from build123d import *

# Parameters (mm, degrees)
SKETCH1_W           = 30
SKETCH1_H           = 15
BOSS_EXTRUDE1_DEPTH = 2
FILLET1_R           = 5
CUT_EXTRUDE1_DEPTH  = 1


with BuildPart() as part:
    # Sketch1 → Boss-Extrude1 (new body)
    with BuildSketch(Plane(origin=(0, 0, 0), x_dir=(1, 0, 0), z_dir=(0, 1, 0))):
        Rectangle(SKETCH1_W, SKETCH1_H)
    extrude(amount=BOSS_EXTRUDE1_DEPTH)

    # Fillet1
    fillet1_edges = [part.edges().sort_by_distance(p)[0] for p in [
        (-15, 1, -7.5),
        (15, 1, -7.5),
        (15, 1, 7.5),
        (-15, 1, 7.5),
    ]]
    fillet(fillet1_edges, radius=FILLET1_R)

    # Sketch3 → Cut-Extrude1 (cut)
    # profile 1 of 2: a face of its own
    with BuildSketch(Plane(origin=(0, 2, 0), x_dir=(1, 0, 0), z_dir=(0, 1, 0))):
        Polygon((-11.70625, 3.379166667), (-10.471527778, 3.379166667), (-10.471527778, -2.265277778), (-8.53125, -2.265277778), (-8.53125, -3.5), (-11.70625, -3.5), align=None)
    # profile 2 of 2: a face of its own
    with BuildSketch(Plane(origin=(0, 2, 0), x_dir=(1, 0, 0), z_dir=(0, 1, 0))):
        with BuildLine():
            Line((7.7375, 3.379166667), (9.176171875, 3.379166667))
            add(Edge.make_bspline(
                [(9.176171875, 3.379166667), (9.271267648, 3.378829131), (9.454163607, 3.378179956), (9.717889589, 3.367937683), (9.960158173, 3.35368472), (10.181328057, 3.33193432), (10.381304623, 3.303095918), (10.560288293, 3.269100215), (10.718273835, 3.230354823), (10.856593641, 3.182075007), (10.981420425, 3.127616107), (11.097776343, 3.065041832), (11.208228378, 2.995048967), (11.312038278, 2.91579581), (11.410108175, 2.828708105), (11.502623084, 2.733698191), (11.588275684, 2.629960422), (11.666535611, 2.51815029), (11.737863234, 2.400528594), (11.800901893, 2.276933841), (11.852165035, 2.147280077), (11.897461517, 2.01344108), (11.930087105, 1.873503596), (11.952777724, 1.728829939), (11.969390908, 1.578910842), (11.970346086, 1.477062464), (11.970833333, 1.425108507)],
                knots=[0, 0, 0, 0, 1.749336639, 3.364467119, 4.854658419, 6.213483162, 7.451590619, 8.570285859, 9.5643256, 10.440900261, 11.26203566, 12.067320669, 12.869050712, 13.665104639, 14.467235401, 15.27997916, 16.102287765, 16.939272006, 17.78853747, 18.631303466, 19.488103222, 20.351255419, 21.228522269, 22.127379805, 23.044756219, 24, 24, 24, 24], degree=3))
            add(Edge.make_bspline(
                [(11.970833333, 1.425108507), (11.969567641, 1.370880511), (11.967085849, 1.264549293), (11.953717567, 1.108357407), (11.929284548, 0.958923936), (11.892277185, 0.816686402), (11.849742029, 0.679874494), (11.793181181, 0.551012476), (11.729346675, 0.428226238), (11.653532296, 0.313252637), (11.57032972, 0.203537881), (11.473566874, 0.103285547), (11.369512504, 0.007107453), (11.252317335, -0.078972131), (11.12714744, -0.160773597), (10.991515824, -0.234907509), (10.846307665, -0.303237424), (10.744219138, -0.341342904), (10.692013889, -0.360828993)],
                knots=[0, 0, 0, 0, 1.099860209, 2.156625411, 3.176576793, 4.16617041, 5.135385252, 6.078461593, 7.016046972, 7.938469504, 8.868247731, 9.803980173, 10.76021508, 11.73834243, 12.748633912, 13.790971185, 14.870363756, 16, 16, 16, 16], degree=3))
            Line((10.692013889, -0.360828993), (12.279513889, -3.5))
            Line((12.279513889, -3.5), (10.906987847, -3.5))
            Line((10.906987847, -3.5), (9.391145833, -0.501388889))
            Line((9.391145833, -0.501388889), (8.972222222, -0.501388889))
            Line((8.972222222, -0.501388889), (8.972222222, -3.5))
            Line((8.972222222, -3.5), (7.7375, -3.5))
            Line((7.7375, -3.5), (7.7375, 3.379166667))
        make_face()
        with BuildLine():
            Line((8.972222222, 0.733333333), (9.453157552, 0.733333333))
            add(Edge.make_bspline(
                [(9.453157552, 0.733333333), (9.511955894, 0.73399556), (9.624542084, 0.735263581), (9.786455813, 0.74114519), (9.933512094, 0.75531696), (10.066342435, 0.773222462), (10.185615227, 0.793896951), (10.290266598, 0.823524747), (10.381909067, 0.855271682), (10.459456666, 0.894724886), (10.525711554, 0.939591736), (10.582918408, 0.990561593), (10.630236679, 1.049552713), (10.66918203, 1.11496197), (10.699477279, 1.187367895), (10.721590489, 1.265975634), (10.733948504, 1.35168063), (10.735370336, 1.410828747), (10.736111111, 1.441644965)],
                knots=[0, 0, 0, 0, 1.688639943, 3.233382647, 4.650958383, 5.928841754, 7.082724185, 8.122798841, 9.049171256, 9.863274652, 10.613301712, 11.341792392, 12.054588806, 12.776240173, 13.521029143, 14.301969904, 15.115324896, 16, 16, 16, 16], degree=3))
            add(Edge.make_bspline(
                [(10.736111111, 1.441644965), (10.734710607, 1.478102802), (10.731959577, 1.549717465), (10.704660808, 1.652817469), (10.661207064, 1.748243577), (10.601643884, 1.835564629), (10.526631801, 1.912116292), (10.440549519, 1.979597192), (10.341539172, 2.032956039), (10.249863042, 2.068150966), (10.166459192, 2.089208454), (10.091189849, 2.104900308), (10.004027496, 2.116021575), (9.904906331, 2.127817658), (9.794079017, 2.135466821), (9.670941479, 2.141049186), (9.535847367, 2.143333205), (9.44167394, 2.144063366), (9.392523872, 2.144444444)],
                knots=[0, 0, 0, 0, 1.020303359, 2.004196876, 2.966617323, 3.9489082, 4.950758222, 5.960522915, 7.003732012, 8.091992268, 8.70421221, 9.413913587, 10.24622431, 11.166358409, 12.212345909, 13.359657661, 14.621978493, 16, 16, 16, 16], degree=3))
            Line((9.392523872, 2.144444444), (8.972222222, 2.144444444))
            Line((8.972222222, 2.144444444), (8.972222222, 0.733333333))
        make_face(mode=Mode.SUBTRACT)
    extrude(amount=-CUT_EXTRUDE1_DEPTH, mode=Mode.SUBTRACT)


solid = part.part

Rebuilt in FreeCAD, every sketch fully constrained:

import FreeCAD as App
import Part
import Sketcher
from FreeCAD import Vector
Q = App.Units.Quantity


def edges_at(feature, points):
    """Names of the edges that pass closest to the given points."""
    edges = feature.Shape.Edges
    near = lambda p: min(range(len(edges)), key=lambda i: edges[i].distToShape(Part.Vertex(*p))[0])
    return sorted({f"Edge{near(p) + 1}" for p in points})

doc = App.newDocument("Part")
params = doc.addObject("Spreadsheet::Sheet", "Params")
for row, (alias, value) in enumerate([
    ("sketch1_width", "30 mm"),
    ("sketch1_height", "15 mm"),
    ("pad1_length", "2 mm"),
    ("fillet_radius", "5 mm"),
    ("pocket1_length", "1 mm"),
], start=1):
    params.set(f"A{row}", alias)
    params.set(f"B{row}", "=" + value)
    params.setAlias(f"B{row}", alias)

body = doc.addObject("PartDesign::Body", "Body")

sketch1 = doc.addObject("Sketcher::SketchObject", "Sketch")
body.addObject(sketch1)
sketch1.AttachmentSupport = (doc.XZ_Plane, [""])
sketch1.MapMode = "FlatFace"
sketch1.addGeometry([
    Part.LineSegment(Vector(-15, -8, 0), Vector(-15, 8, 0)),
    Part.LineSegment(Vector(-15, 8, 0), Vector(15, 8, 0)),
    Part.LineSegment(Vector(15, 8, 0), Vector(15, -8, 0)),
    Part.LineSegment(Vector(15, -8, 0), Vector(-15, -8, 0)),
], False)
sketch1.addConstraint([
    Sketcher.Constraint("Coincident", 0, 2, 1, 1),
    Sketcher.Constraint("Coincident", 1, 2, 2, 1),
    Sketcher.Constraint("Coincident", 2, 2, 3, 1),
    Sketcher.Constraint("Coincident", 3, 2, 0, 1),
    Sketcher.Constraint("Vertical", 0),
    Sketcher.Constraint("Horizontal", 1),
    Sketcher.Constraint("Vertical", 2),
    Sketcher.Constraint("Horizontal", 3),
    Sketcher.Constraint("Symmetric", 0, 2, 2, 2, -1, 1),
    Sketcher.Constraint("DistanceX", 1, 1, 1, 2, Q("30 mm")),
    Sketcher.Constraint("DistanceY", 0, 1, 0, 2, Q("15 mm")),
])
sketch1.setExpression("Constraints[9]", "Params.sketch1_width")
sketch1.setExpression("Constraints[10]", "Params.sketch1_height")
pad1 = doc.addObject("PartDesign::Pad", "Pad")
body.addObject(pad1)
pad1.Profile = sketch1
pad1.setExpression("Length", "Params.pad1_length")
pad1.Reversed = True
doc.recompute()

fillet = doc.addObject("PartDesign::Fillet", "Fillet")
body.addObject(fillet)
fillet.Base = (pad1, edges_at(pad1, [
    (-15, 1, -7.5),
    (15, 1, -7.5),
    (15, 1, 7.5),
    (-15, 1, 7.5),
]))
fillet.setExpression("Radius", "Params.fillet_radius")

sketch2 = doc.addObject("Sketcher::SketchObject", "Sketch001")
body.addObject(sketch2)
sketch2.AttachmentSupport = (doc.XZ_Plane, [""])
sketch2.MapMode = "FlatFace"
sketch2.AttachmentOffset = App.Placement(Vector(0, 0, -2), App.Rotation())
sketch2.addGeometry([
    Part.LineSegment(Vector(-10.471528, -3.379167, 0), Vector(-11.70625, -3.379167, 0)),
    Part.LineSegment(Vector(-11.70625, -3.379167, 0), Vector(-11.70625, 3.5, 0)),
    Part.LineSegment(Vector(-11.70625, 3.5, 0), Vector(-8.53125, 3.5, 0)),
    Part.LineSegment(Vector(-8.53125, 3.5, 0), Vector(-8.53125, 2.265278, 0)),
    Part.LineSegment(Vector(-8.53125, 2.265278, 0), Vector(-10.471528, 2.265278, 0)),
    Part.LineSegment(Vector(-10.471528, 2.265278, 0), Vector(-10.471528, -3.379167, 0)),
    Part.LineSegment(Vector(9.176172, -3.379167, 0), Vector(7.7375, -3.379167, 0)),
    Part.LineSegment(Vector(7.7375, -3.379167, 0), Vector(7.7375, 3.5, 0)),
    Part.LineSegment(Vector(7.7375, 3.5, 0), Vector(8.972222, 3.5, 0)),
    Part.LineSegment(Vector(8.972222, 3.5, 0), Vector(8.972222, 0.501389, 0)),
    Part.LineSegment(Vector(8.972222, 0.501389, 0), Vector(9.391146, 0.501389, 0)),
    Part.LineSegment(Vector(9.391146, 0.501389, 0), Vector(10.906988, 3.5, 0)),
    Part.LineSegment(Vector(10.906988, 3.5, 0), Vector(12.279514, 3.5, 0)),
    Part.LineSegment(Vector(12.279514, 3.5, 0), Vector(10.692014, 0.360829, 0)),
    Part.BSplineCurve([Vector(11.970833, -1.425109, 0), Vector(11.969568, -1.370881, 0), Vector(11.967086, -1.264549, 0), Vector(11.953718, -1.108357, 0), Vector(11.929285, -0.958924, 0), Vector(11.892277, -0.816686, 0), Vector(11.849742, -0.679874, 0), Vector(11.793181, -0.551012, 0), Vector(11.729347, -0.428226, 0), Vector(11.653532, -0.313253, 0), Vector(11.57033, -0.203538, 0), Vector(11.473567, -0.103286, 0), Vector(11.369513, -0.007107, 0), Vector(11.252317, 0.078972, 0), Vector(11.127147, 0.160774, 0), Vector(10.991516, 0.234908, 0), Vector(10.846308, 0.303237, 0), Vector(10.744219, 0.341343, 0), Vector(10.692014, 0.360829, 0)], [4, 1, 1, 1, 1, 1, 1, 1, 1, 1, 1, 1, 1, 1, 1, 1, 4], [0, 1.099860209, 2.156625411, 3.176576793, 4.16617041, 5.135385252, 6.078461593, 7.016046972, 7.938469504, 8.868247731, 9.803980173, 10.76021508, 11.73834243, 12.748633912, 13.790971185, 14.870363756, 16], False, 3, [1, 1, 1, 1, 1, 1, 1, 1, 1, 1, 1, 1, 1, 1, 1, 1, 1, 1, 1], False),
    Part.BSplineCurve([Vector(9.176172, -3.379167, 0), Vector(9.271268, -3.378829, 0), Vector(9.454164, -3.37818, 0), Vector(9.71789, -3.367938, 0), Vector(9.960158, -3.353685, 0), Vector(10.181328, -3.331934, 0), Vector(10.381305, -3.303096, 0), Vector(10.560288, -3.2691, 0), Vector(10.718274, -3.230355, 0), Vector(10.856594, -3.182075, 0), Vector(10.98142, -3.127616, 0), Vector(11.097776, -3.065042, 0), Vector(11.208228, -2.995049, 0), Vector(11.312038, -2.915796, 0), Vector(11.410108, -2.828708, 0), Vector(11.502623, -2.733698, 0), Vector(11.588276, -2.62996, 0), Vector(11.666536, -2.51815, 0), Vector(11.737863, -2.400529, 0), Vector(11.800902, -2.276934, 0), Vector(11.852165, -2.14728, 0), Vector(11.897462, -2.013441, 0), Vector(11.930087, -1.873504, 0), Vector(11.952778, -1.72883, 0), Vector(11.969391, -1.578911, 0), Vector(11.970346, -1.477062, 0), Vector(11.970833, -1.425109, 0)], [4, 1, 1, 1, 1, 1, 1, 1, 1, 1, 1, 1, 1, 1, 1, 1, 1, 1, 1, 1, 1, 1, 1, 1, 4], [0, 1.749336639, 3.364467119, 4.854658419, 6.213483162, 7.451590619, 8.570285859, 9.5643256, 10.440900261, 11.26203566, 12.067320669, 12.869050712, 13.665104639, 14.467235401, 15.27997916, 16.102287765, 16.939272006, 17.78853747, 18.631303466, 19.488103222, 20.351255419, 21.228522269, 22.127379805, 23.044756219, 24], False, 3, [1, 1, 1, 1, 1, 1, 1, 1, 1, 1, 1, 1, 1, 1, 1, 1, 1, 1, 1, 1, 1, 1, 1, 1, 1, 1, 1], False),
    Part.LineSegment(Vector(8.972222, -0.733333, 0), Vector(8.972222, -2.144444, 0)),
    Part.LineSegment(Vector(8.972222, -2.144444, 0), Vector(9.392524, -2.144444, 0)),
    Part.BSplineCurve([Vector(10.736111, -1.441645, 0), Vector(10.734711, -1.478103, 0), Vector(10.73196, -1.549717, 0), Vector(10.704661, -1.652817, 0), Vector(10.661207, -1.748244, 0), Vector(10.601644, -1.835565, 0), Vector(10.526632, -1.912116, 0), Vector(10.44055, -1.979597, 0), Vector(10.341539, -2.032956, 0), Vector(10.249863, -2.068151, 0), Vector(10.166459, -2.089208, 0), Vector(10.09119, -2.1049, 0), Vector(10.004027, -2.116022, 0), Vector(9.904906, -2.127818, 0), Vector(9.794079, -2.135467, 0), Vector(9.670941, -2.141049, 0), Vector(9.535847, -2.143333, 0), Vector(9.441674, -2.144063, 0), Vector(9.392524, -2.144444, 0)], [4, 1, 1, 1, 1, 1, 1, 1, 1, 1, 1, 1, 1, 1, 1, 1, 4], [0, 1.020303359, 2.004196876, 2.966617323, 3.9489082, 4.950758222, 5.960522915, 7.003732012, 8.091992268, 8.70421221, 9.413913587, 10.24622431, 11.166358409, 12.212345909, 13.359657661, 14.621978493, 16], False, 3, [1, 1, 1, 1, 1, 1, 1, 1, 1, 1, 1, 1, 1, 1, 1, 1, 1, 1, 1], False),
    Part.BSplineCurve([Vector(9.453158, -0.733333, 0), Vector(9.511956, -0.733996, 0), Vector(9.624542, -0.735264, 0), Vector(9.786456, -0.741145, 0), Vector(9.933512, -0.755317, 0), Vector(10.066342, -0.773222, 0), Vector(10.185615, -0.793897, 0), Vector(10.290267, -0.823525, 0), Vector(10.381909, -0.855272, 0), Vector(10.459457, -0.894725, 0), Vector(10.525712, -0.939592, 0), Vector(10.582918, -0.990562, 0), Vector(10.630237, -1.049553, 0), Vector(10.669182, -1.114962, 0), Vector(10.699477, -1.187368, 0), Vector(10.72159, -1.265976, 0), Vector(10.733949, -1.351681, 0), Vector(10.73537, -1.410829, 0), Vector(10.736111, -1.441645, 0)], [4, 1, 1, 1, 1, 1, 1, 1, 1, 1, 1, 1, 1, 1, 1, 1, 4], [0, 1.688639943, 3.233382647, 4.650958383, 5.928841754, 7.082724185, 8.122798841, 9.049171256, 9.863274652, 10.613301712, 11.341792392, 12.054588806, 12.776240173, 13.521029143, 14.301969904, 15.115324896, 16], False, 3, [1, 1, 1, 1, 1, 1, 1, 1, 1, 1, 1, 1, 1, 1, 1, 1, 1, 1, 1], False),
    Part.LineSegment(Vector(9.453158, -0.733333, 0), Vector(8.972222, -0.733333, 0)),
], False)
sketch2.addConstraint([
    Sketcher.Constraint("Block", 14),
    Sketcher.Constraint("Block", 15),
    Sketcher.Constraint("Block", 18),
    Sketcher.Constraint("Block", 19),
    Sketcher.Constraint("Coincident", 0, 2, 1, 1),
    Sketcher.Constraint("Coincident", 1, 2, 2, 1),
    Sketcher.Constraint("Coincident", 2, 2, 3, 1),
    Sketcher.Constraint("Coincident", 3, 2, 4, 1),
    Sketcher.Constraint("Coincident", 4, 2, 5, 1),
    Sketcher.Constraint("Coincident", 5, 2, 0, 1),
    Sketcher.Constraint("Coincident", 6, 2, 7, 1),
    Sketcher.Constraint("Coincident", 7, 2, 8, 1),
    Sketcher.Constraint("Coincident", 8, 2, 9, 1),
    Sketcher.Constraint("Coincident", 9, 2, 10, 1),
    Sketcher.Constraint("Coincident", 10, 2, 11, 1),
    Sketcher.Constraint("Coincident", 11, 2, 12, 1),
    Sketcher.Constraint("Coincident", 12, 2, 13, 1),
    Sketcher.Constraint("Coincident", 13, 2, 14, 2),
    Sketcher.Constraint("Coincident", 15, 1, 6, 1),
    Sketcher.Constraint("Coincident", 16, 2, 17, 1),
    Sketcher.Constraint("Coincident", 17, 2, 18, 2),
    Sketcher.Constraint("Coincident", 19, 1, 20, 1),
    Sketcher.Constraint("Coincident", 20, 2, 16, 1),
    Sketcher.Constraint("Horizontal", 0),
    Sketcher.Constraint("Vertical", 1),
    Sketcher.Constraint("Horizontal", 2),
    Sketcher.Constraint("Vertical", 3),
    Sketcher.Constraint("Horizontal", 4),
    Sketcher.Constraint("Vertical", 5),
    Sketcher.Constraint("Horizontal", 6),
    Sketcher.Constraint("Vertical", 7),
    Sketcher.Constraint("Horizontal", 8),
    Sketcher.Constraint("Vertical", 9),
    Sketcher.Constraint("Horizontal", 10),
    Sketcher.Constraint("Horizontal", 12),
    Sketcher.Constraint("Vertical", 16),
    Sketcher.Constraint("Horizontal", 17),
    Sketcher.Constraint("Horizontal", 20),
    Sketcher.Constraint("Horizontal", 5, 2, 6, 2),
    Sketcher.Constraint("Horizontal", 2, 2, 7, 2),
    Sketcher.Constraint("Horizontal", 8, 2, 11, 2),
    Sketcher.Constraint("Vertical", 9, 2, 16, 2),
    Sketcher.Constraint("Equal", 0, 8),
    Sketcher.Constraint("Equal", 8, 3),
    Sketcher.Constraint("DistanceY", -1, 1, 1, 2, Q("3.5 mm")),
    Sketcher.Constraint("DistanceX", 2, 1, 2, 2, Q("3.175 mm")),
    Sketcher.Constraint("DistanceX", 17, 1, 17, 2, Q("0.420302 mm")),
    Sketcher.Constraint("DistanceX", 6, 2, 6, 1, Q("1.438672 mm")),
    Sketcher.Constraint("DistanceY", 9, 2, 9, 1, Q("2.998611 mm")),
    Sketcher.Constraint("DistanceX", 13, 2, 12, 2, Q("1.5875 mm")),
    Sketcher.Constraint("DistanceX", 10, 1, 10, 2, Q("0.418924 mm")),
    Sketcher.Constraint("DistanceX", 12, 1, 12, 2, Q("1.372526 mm")),
    Sketcher.Constraint("DistanceX", 0, 2, -1, 1, Q("11.70625 mm")),
])
pocket1 = doc.addObject("PartDesign::Pocket", "Pocket")
body.addObject(pocket1)
pocket1.Profile = sketch2
pocket1.setExpression("Length", "Params.pocket1_length")
pocket1.Reversed = True

doc.recompute()
